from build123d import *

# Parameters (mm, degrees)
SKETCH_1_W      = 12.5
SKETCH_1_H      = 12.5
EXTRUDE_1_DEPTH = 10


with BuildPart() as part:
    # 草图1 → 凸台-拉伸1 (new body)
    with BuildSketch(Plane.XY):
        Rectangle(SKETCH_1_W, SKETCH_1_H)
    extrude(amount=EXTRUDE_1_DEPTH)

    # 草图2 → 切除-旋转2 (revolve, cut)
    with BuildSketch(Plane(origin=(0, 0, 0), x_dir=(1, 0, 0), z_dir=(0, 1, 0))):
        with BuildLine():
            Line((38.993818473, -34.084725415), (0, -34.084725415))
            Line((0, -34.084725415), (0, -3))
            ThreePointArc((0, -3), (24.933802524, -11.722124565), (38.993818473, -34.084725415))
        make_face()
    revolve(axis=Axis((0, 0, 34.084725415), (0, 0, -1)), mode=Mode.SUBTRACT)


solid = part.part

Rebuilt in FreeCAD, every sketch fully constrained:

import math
import FreeCAD as App
import Part
import Sketcher
Q = App.Units.Quantity


def add_polygon(sketch, points):
    """Adds a closed chain of lines whose ends are joined by coincident constraints."""
    first, n = sketch.GeometryCount, len(points)
    for a, b in zip(points, points[1:] + points[:1]):
        sketch.addGeometry(Part.LineSegment(App.Vector(*a, 0), App.Vector(*b, 0)), False)
    for i in range(n):
        sketch.addConstraint(Sketcher.Constraint("Coincident", first + i, 2, first + (i + 1) % n, 1))

doc = App.newDocument("Part")
params = doc.addObject("Spreadsheet::Sheet", "Params")
for row, (alias, value) in enumerate([
    ("sketch1_width", "12.5 mm"),
    ("pad1_length", "10 mm"),
    ("sketch2_radius", "40 mm"),
    ("groove_angle", "360 deg"),
], start=1):
    params.set(f"A{row}", alias)
    params.set(f"B{row}", "=" + value)
    params.setAlias(f"B{row}", alias)

body = doc.addObject("PartDesign::Body", "Body")

sketch1 = body.newObject("Sketcher::SketchObject", "Sketch")
sketch1.AttachmentSupport = (doc.getObject("XY_Plane"), [""])
sketch1.MapMode = "FlatFace"
add_polygon(sketch1, [(-6, 6), (-6, -6), (6, -6), (6, 6)])
sketch1.addConstraint([
    Sketcher.Constraint("Vertical", 0),
    Sketcher.Constraint("Horizontal", 1),
    Sketcher.Constraint("Vertical", 2),
    Sketcher.Constraint("Horizontal", 3),
    Sketcher.Constraint("Symmetric", 0, 2, 2, 2, -1, 1),
    Sketcher.Constraint("Equal", 3, 0),
    Sketcher.Constraint("DistanceX", 1, 1, 1, 2, Q("12.5 mm")),
])
sketch1.setExpression("Constraints[10]", "Params.sketch1_width")
pad1 = body.newObject("PartDesign::Pad", "Pad")
pad1.Profile = sketch1
pad1.setExpression("Length", "Params.pad1_length")

sketch2 = body.newObject("Sketcher::SketchObject", "Sketch001")
sketch2.AttachmentSupport = (doc.getObject("XZ_Plane"), [""])
sketch2.MapMode = "FlatFace"
sketch2.addGeometry([
    Part.LineSegment(App.Vector(0, 34, 0), App.Vector(39, 34, 0)),
    Part.ArcOfCircle(Part.Circle(App.Vector(0, 43, 0), App.Vector(0, 0, 1), 40), math.radians(-90), math.radians(-13)),
    Part.LineSegment(App.Vector(0, 3, 0), App.Vector(0, 34, 0)),
], False)
sketch2.addConstraint([
    Sketcher.Constraint("Coincident", 0, 2, 1, 2),
    Sketcher.Constraint("Coincident", 1, 1, 2, 1),
    Sketcher.Constraint("Coincident", 2, 2, 0, 1),
    Sketcher.Constraint("Horizontal", 0),
    Sketcher.Constraint("Vertical", 2),
    Sketcher.Constraint("PointOnObject", 1, 3, -2),
    Sketcher.Constraint("PointOnObject", 1, 1, -2),
    Sketcher.Constraint("Radius", 1, Q("40 mm")),
    Sketcher.Constraint("DistanceY", -1, 1, 1, 3, Q("43 mm")),
    Sketcher.Constraint("DistanceX", 0, 1, 0, 2, Q("38.993818 mm")),
])
sketch2.setExpression("Constraints[7]", "Params.sketch2_radius")
groove = body.newObject("PartDesign::Groove", "Groove")
groove.Profile = sketch2
groove.ReferenceAxis = (sketch2, ["V_Axis"])
groove.setExpression("Angle", "Params.groove_angle")

doc.recompute()
